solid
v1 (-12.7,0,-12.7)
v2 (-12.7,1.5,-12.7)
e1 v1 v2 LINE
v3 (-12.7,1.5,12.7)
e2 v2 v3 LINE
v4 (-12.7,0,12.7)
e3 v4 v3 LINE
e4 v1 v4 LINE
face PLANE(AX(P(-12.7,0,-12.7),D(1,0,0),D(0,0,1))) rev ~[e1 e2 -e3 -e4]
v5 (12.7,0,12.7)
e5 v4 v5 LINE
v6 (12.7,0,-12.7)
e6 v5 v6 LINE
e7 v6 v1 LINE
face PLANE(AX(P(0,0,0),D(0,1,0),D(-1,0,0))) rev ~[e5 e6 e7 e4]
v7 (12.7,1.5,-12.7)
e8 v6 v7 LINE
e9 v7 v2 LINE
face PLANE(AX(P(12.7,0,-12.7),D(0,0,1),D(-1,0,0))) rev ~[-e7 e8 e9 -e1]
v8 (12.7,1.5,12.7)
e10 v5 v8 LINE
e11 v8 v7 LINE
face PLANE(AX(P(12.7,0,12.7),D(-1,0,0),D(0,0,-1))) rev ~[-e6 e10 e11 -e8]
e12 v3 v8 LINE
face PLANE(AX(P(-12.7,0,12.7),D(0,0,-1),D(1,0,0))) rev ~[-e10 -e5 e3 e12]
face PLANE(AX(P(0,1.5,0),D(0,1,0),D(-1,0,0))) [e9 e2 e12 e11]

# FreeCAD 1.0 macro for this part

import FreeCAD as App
import Part
import Sketcher
from FreeCAD import Vector
Q = App.Units.Quantity

doc = App.newDocument("Part")
params = doc.addObject("Spreadsheet::Sheet", "Params")
for row, (alias, value) in enumerate([
    ("sketch1_width", "25.4 mm"),
    ("pad1_length", "1.5 mm"),
], start=1):
    params.set(f"A{row}", alias)
    params.set(f"B{row}", "=" + value)
    params.setAlias(f"B{row}", alias)

body = doc.addObject("PartDesign::Body", "Body")

# Sketch on XZ plane
sketch1 = body.newObject("Sketcher::SketchObject", "Sketch")
sketch1.AttachmentSupport = (doc.getObject("XZ_Plane"), [""])
sketch1.MapMode = "FlatFace"
sketch1.addGeometry([
    Part.LineSegment(Vector(13, 13, 0), Vector(13, -13, 0)),
    Part.LineSegment(Vector(13, -13, 0), Vector(-13, -13, 0)),
    Part.LineSegment(Vector(-13, -13, 0), Vector(-13, 13, 0)),
    Part.LineSegment(Vector(-13, 13, 0), Vector(13, 13, 0)),
], False)
sketch1.addConstraint([
    Sketcher.Constraint("Coincident", 0, 2, 1, 1),
    Sketcher.Constraint("Coincident", 1, 2, 2, 1),
    Sketcher.Constraint("Coincident", 2, 2, 3, 1),
    Sketcher.Constraint("Coincident", 3, 2, 0, 1),
    Sketcher.Constraint("Vertical", 0),
    Sketcher.Constraint("Horizontal", 1),
    Sketcher.Constraint("Vertical", 2),
    Sketcher.Constraint("Horizontal", 3),
    Sketcher.Constraint("Symmetric", 0, 2, 2, 2, -1, 1),
    Sketcher.Constraint("Equal", 3, 0),
    Sketcher.Constraint("DistanceX", 1, 2, 1, 1, Q("25.4 mm")),
])
sketch1.setExpression("Constraints[10]", "Params.sketch1_width")
pad1 = body.newObject("PartDesign::Pad", "Pad")
pad1.Profile = sketch1
pad1.setExpression("Length", "Params.pad1_length")
pad1.Reversed = True

doc.recompute()
